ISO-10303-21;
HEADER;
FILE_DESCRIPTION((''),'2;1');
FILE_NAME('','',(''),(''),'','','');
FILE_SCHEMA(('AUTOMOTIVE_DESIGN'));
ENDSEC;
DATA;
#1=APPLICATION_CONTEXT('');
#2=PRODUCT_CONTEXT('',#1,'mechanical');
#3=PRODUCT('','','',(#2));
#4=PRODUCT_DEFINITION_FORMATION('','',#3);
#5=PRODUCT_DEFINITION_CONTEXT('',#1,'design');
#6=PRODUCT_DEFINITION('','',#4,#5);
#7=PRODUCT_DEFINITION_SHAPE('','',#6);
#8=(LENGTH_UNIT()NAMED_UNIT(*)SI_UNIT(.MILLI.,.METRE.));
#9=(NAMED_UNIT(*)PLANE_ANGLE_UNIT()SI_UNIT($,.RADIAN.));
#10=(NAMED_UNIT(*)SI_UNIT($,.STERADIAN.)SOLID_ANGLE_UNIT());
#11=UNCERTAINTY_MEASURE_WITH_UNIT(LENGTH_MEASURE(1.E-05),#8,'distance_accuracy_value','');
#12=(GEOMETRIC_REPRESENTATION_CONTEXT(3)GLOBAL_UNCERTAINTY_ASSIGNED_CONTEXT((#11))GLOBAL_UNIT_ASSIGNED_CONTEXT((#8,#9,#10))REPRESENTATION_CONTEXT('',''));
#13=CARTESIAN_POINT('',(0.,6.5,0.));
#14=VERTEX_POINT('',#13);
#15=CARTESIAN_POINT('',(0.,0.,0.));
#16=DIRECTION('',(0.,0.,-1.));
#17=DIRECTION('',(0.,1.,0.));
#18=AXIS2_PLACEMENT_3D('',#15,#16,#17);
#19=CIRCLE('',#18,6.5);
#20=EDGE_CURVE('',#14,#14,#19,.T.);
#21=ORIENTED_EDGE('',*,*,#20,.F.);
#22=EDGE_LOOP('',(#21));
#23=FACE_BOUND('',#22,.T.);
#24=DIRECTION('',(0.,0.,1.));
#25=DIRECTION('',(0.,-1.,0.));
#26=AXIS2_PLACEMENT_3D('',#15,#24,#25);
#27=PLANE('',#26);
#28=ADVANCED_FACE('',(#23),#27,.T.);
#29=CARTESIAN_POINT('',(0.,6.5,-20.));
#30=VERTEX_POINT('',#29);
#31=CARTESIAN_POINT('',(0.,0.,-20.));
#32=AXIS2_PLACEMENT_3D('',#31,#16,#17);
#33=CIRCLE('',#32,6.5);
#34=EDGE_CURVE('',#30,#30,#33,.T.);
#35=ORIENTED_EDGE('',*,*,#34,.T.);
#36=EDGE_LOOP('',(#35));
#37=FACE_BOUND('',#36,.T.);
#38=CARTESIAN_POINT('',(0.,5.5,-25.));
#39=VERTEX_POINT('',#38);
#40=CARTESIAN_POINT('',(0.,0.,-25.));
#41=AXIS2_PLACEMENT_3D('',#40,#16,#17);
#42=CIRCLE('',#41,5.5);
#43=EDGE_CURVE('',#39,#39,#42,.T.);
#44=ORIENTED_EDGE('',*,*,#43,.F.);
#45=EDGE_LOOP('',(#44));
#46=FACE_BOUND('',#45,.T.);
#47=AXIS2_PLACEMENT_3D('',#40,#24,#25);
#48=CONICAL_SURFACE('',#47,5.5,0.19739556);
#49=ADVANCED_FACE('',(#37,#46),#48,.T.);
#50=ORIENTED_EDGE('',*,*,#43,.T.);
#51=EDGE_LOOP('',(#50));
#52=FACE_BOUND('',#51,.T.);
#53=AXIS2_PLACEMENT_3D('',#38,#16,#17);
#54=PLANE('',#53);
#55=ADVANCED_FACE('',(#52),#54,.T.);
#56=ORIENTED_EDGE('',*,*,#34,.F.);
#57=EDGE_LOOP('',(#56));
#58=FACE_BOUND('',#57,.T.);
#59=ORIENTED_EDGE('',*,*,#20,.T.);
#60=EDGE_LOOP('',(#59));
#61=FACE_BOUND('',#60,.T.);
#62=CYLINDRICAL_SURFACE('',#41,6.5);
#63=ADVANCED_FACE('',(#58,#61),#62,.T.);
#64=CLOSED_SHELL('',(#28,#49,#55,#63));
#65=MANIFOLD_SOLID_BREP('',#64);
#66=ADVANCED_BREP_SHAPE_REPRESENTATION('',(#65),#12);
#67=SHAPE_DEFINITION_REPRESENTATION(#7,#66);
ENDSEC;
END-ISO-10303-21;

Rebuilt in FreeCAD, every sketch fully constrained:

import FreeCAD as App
import Part
import Sketcher

V = App.Vector
Q = App.Units.Quantity

doc = App.newDocument("Part")
body = doc.addObject("PartDesign::Body", "Body")

sketch1 = body.newObject("Sketcher::SketchObject", "Sketch")
sketch1.AttachmentSupport = (doc.getObject("YZ_Plane"), [""])
sketch1.MapMode = "FlatFace"
sketch1.addGeometry(Part.LineSegment(V(6.5, 0, 0), V(0, 0, 0)), False)
sketch1.addGeometry(Part.LineSegment(V(0, 0, 0), V(0, -25, 0)), False)
sketch1.addGeometry(Part.LineSegment(V(0, -25, 0), V(5.5, -25, 0)), False)
sketch1.addGeometry(Part.LineSegment(V(5.5, -25, 0), V(6.5, -20, 0)), False)
sketch1.addGeometry(Part.LineSegment(V(6.5, -20, 0), V(6.5, 0, 0)), False)
sketch1.addConstraint(Sketcher.Constraint("Coincident", 0, 2, 1, 1))
sketch1.addConstraint(Sketcher.Constraint("Coincident", 1, 2, 2, 1))
sketch1.addConstraint(Sketcher.Constraint("Coincident", 2, 2, 3, 1))
sketch1.addConstraint(Sketcher.Constraint("Coincident", 3, 2, 4, 1))
sketch1.addConstraint(Sketcher.Constraint("Coincident", 4, 2, 0, 1))
sketch1.addConstraint(Sketcher.Constraint("Horizontal", 0))
sketch1.addConstraint(Sketcher.Constraint("Vertical", 1))
sketch1.addConstraint(Sketcher.Constraint("Horizontal", 2))
sketch1.addConstraint(Sketcher.Constraint("Vertical", 4))
sketch1.addConstraint(Sketcher.Constraint("Coincident", 0, 2, -1, 1))
sketch1.addConstraint(Sketcher.Constraint("DistanceY", 1, 2, 1, 1, Q("25 mm")))
sketch1.addConstraint(Sketcher.Constraint("DistanceY", 4, 1, 4, 2, Q("20 mm")))
sketch1.addConstraint(Sketcher.Constraint("DistanceX", 0, 2, 0, 1, Q("6.5 mm")))
sketch1.addConstraint(Sketcher.Constraint("DistanceX", 2, 1, 2, 2, Q("5.5 mm")))
revolution = body.newObject("PartDesign::Revolution", "Revolution")
revolution.Profile = sketch1
revolution.ReferenceAxis = (sketch1, ["V_Axis"])
revolution.Angle = 360

doc.recompute()
